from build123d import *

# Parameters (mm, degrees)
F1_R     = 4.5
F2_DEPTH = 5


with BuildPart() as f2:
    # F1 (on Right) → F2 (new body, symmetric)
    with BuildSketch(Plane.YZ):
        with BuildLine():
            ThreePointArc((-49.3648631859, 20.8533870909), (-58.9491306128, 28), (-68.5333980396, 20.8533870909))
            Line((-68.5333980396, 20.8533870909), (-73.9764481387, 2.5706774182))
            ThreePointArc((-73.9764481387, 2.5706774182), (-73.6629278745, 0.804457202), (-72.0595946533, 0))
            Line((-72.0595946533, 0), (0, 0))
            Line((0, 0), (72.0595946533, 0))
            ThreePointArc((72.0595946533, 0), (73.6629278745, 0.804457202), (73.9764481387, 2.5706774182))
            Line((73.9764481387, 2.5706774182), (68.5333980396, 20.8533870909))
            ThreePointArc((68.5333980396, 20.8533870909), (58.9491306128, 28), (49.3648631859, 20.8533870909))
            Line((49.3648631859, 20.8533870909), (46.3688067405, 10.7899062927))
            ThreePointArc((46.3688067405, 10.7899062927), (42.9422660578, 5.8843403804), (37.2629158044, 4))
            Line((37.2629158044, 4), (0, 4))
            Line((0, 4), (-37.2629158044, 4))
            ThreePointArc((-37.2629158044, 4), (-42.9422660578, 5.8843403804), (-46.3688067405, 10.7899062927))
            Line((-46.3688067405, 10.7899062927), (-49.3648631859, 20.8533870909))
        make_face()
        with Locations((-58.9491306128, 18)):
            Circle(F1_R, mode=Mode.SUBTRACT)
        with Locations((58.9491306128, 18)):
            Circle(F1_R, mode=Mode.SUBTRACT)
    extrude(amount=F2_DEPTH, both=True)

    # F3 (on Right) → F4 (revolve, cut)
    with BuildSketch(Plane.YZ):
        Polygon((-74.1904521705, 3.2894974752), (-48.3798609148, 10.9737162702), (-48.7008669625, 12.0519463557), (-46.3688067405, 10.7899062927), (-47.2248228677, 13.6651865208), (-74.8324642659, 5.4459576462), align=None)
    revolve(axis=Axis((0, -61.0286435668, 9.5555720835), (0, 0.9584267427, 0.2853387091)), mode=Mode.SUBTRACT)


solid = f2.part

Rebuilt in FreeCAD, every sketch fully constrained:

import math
import FreeCAD as App
import Part
import Sketcher
Q = App.Units.Quantity

doc = App.newDocument("Part")
body = doc.addObject("PartDesign::Body", "Body")

# Sketch on YZ plane
sketch1 = body.newObject("Sketcher::SketchObject", "Sketch")
sketch1.AttachmentSupport = (doc.getObject("YZ_Plane"), [""])
sketch1.MapMode = "FlatFace"
sketch1.addGeometry([
    Part.ArcOfCircle(Part.Circle(App.Vector(-58.9, 18, 0), App.Vector(0, 0, 1), 10), math.radians(17), math.radians(163)),  # 0
    Part.LineSegment(App.Vector(-68.5, 20.9, 0), App.Vector(-74, 2.6, 0)),  # 1
    Part.ArcOfCircle(Part.Circle(App.Vector(-72.1, 2, 0), App.Vector(0, 0, 1), 2), math.radians(163), math.radians(270)),  # 2
    Part.LineSegment(App.Vector(-72.1, 0, 0), App.Vector(72.1, 0, 0)),  # 3
    Part.ArcOfCircle(Part.Circle(App.Vector(72.1, 2, 0), App.Vector(0, 0, 1), 2), math.radians(-90), math.radians(17)),  # 4
    Part.LineSegment(App.Vector(74, 2.6, 0), App.Vector(68.5, 20.9, 0)),  # 5
    Part.ArcOfCircle(Part.Circle(App.Vector(58.9, 18, 0), App.Vector(0, 0, 1), 10), math.radians(17), math.radians(163)),  # 6
    Part.LineSegment(App.Vector(49.4, 20.9, 0), App.Vector(46.4, 10.8, 0)),  # 7
    Part.ArcOfCircle(Part.Circle(App.Vector(37.3, 13.5, 0), App.Vector(0, 0, 1), 9.5), math.radians(-90), math.radians(-17)),  # 8
    Part.LineSegment(App.Vector(37.3, 4, 0), App.Vector(-37.3, 4, 0)),  # 9
    Part.ArcOfCircle(Part.Circle(App.Vector(-37.3, 13.5, 0), App.Vector(0, 0, 1), 9.5), math.radians(-163), math.radians(-90)),  # 10
    Part.LineSegment(App.Vector(-46.4, 10.8, 0), App.Vector(-49.4, 20.9, 0)),  # 11
    Part.Circle(App.Vector(-58.9, 18, 0), App.Vector(0, 0, 1), 4.5),  # 12
    Part.Circle(App.Vector(58.9, 18, 0), App.Vector(0, 0, 1), 4.5),  # 13
], False)
sketch1.addConstraint([
    Sketcher.Constraint("Tangent", 0, 2, 1, 1),
    Sketcher.Constraint("Tangent", 1, 2, 2, 1),
    Sketcher.Constraint("Tangent", 2, 2, 3, 1),
    Sketcher.Constraint("Tangent", 3, 2, 4, 1),
    Sketcher.Constraint("Tangent", 4, 2, 5, 1),
    Sketcher.Constraint("Tangent", 5, 2, 6, 1),
    Sketcher.Constraint("Tangent", 6, 2, 7, 1),
    Sketcher.Constraint("Tangent", 7, 2, 8, 2),
    Sketcher.Constraint("Tangent", 8, 1, 9, 1),
    Sketcher.Constraint("Tangent", 9, 2, 10, 2),
    Sketcher.Constraint("Tangent", 10, 1, 11, 1),
    Sketcher.Constraint("Tangent", 11, 2, 0, 1),
    Sketcher.Constraint("Horizontal", 3),
    Sketcher.Constraint("Horizontal", 9),
    Sketcher.Constraint("Coincident", 12, 3, 0, 3),
    Sketcher.Constraint("Coincident", 13, 3, 6, 3),
    Sketcher.Constraint("Equal", 2, 4),
    Sketcher.Constraint("Equal", 0, 6),
    Sketcher.Constraint("Equal", 8, 10),
    Sketcher.Constraint("Equal", 12, 13),
    Sketcher.Constraint("Symmetric", 2, 2, 3, 2, -1, 1),
    Sketcher.Constraint("Symmetric", 0, 3, 6, 3, -2),
    Sketcher.Constraint("Parallel", 1, 7),
    Sketcher.Constraint("Parallel", 5, 11),
    Sketcher.Constraint("Diameter", 12, Q("9 mm")),
    Sketcher.Constraint("Radius", 0, Q("10 mm")),
    Sketcher.Constraint("Radius", 2, Q("2 mm")),
    Sketcher.Constraint("DistanceY", -1, 1, 0, 3, Q("18 mm")),
    Sketcher.Constraint("DistanceY", -1, 1, 8, 1, Q("4 mm")),
    Sketcher.Constraint("Distance", 7, Q("10.5 mm")),
    Sketcher.Constraint("Radius", 8, Q("9.500873 mm")),
    Sketcher.Constraint("DistanceX", 3, 1, 3, 2, Q("144.119189 mm")),
])
pad1 = body.newObject("PartDesign::Pad", "Pad")
pad1.Profile = sketch1
pad1.Length = 10
pad1.Midplane = True

# Sketch on YZ plane
sketch2 = body.newObject("Sketcher::SketchObject", "Sketch001")
sketch2.AttachmentSupport = (doc.getObject("YZ_Plane"), [""])
sketch2.MapMode = "FlatFace"
sketch2.addGeometry([
    Part.LineSegment(App.Vector(-74.190452, 3.289497, 0), App.Vector(-48.379861, 10.973716, 0)),  # 0
    Part.LineSegment(App.Vector(-48.379861, 10.973716, 0), App.Vector(-48.700867, 12.051946, 0)),  # 1
    Part.LineSegment(App.Vector(-48.700867, 12.051946, 0), App.Vector(-46.368807, 10.789906, 0)),  # 2
    Part.LineSegment(App.Vector(-46.368807, 10.789906, 0), App.Vector(-47.224823, 13.665187, 0)),  # 3
    Part.LineSegment(App.Vector(-47.224823, 13.665187, 0), App.Vector(-74.832464, 5.445958, 0)),  # 4
    Part.LineSegment(App.Vector(-74.832464, 5.445958, 0), App.Vector(-74.190452, 3.289497, 0)),  # 5
], False)
sketch2.addGeometry(Part.LineSegment(App.Vector(-74.832464, 5.445958, 0), App.Vector(-47.224823, 13.665187, 0)), True)  # axis
sketch2.addConstraint([
    Sketcher.Constraint("Coincident", 0, 2, 1, 1),
    Sketcher.Constraint("Coincident", 1, 2, 2, 1),
    Sketcher.Constraint("Coincident", 2, 2, 3, 1),
    Sketcher.Constraint("Coincident", 3, 2, 4, 1),
    Sketcher.Constraint("Coincident", 4, 2, 5, 1),
    Sketcher.Constraint("Coincident", 5, 2, 0, 1),
    Sketcher.Constraint("Coincident", 6, 1, 4, 2),
    Sketcher.Constraint("Coincident", 6, 2, 3, 2),
    Sketcher.Constraint("Distance", 3, Q("3 mm")),
    Sketcher.Constraint("Distance", 5, Q("2.25 mm")),
    Sketcher.Constraint("Distance", 1, Q("1.125 mm")),
    Sketcher.Constraint("Distance", 2, Q("2.65165 mm")),
    Sketcher.Constraint("DistanceX", 0, 2, -1, 1, Q("48.379861 mm")),
    Sketcher.Constraint("DistanceY", 0, 2, 1, 2, Q("1.07823 mm")),
    Sketcher.Constraint("DistanceY", 2, 2, 0, 2, Q("0.18381 mm")),
    Sketcher.Constraint("DistanceY", 1, 2, 3, 2, Q("1.61324 mm")),
    Sketcher.Constraint("DistanceY", 4, 2, 1, 2, Q("6.605989 mm")),
    Sketcher.Constraint("DistanceX", 4, 2, 3, 2, Q("27.607641 mm")),
    Sketcher.Constraint("DistanceY", 5, 2, 4, 2, Q("2.15646 mm")),
    Sketcher.Constraint("DistanceY", -1, 1, 0, 2, Q("10.973716 mm")),
])
groove = body.newObject("PartDesign::Groove", "Groove")
groove.Profile = sketch2
groove.ReferenceAxis = (sketch2, ["Axis0"])
groove.Angle = 360

doc.recompute()
